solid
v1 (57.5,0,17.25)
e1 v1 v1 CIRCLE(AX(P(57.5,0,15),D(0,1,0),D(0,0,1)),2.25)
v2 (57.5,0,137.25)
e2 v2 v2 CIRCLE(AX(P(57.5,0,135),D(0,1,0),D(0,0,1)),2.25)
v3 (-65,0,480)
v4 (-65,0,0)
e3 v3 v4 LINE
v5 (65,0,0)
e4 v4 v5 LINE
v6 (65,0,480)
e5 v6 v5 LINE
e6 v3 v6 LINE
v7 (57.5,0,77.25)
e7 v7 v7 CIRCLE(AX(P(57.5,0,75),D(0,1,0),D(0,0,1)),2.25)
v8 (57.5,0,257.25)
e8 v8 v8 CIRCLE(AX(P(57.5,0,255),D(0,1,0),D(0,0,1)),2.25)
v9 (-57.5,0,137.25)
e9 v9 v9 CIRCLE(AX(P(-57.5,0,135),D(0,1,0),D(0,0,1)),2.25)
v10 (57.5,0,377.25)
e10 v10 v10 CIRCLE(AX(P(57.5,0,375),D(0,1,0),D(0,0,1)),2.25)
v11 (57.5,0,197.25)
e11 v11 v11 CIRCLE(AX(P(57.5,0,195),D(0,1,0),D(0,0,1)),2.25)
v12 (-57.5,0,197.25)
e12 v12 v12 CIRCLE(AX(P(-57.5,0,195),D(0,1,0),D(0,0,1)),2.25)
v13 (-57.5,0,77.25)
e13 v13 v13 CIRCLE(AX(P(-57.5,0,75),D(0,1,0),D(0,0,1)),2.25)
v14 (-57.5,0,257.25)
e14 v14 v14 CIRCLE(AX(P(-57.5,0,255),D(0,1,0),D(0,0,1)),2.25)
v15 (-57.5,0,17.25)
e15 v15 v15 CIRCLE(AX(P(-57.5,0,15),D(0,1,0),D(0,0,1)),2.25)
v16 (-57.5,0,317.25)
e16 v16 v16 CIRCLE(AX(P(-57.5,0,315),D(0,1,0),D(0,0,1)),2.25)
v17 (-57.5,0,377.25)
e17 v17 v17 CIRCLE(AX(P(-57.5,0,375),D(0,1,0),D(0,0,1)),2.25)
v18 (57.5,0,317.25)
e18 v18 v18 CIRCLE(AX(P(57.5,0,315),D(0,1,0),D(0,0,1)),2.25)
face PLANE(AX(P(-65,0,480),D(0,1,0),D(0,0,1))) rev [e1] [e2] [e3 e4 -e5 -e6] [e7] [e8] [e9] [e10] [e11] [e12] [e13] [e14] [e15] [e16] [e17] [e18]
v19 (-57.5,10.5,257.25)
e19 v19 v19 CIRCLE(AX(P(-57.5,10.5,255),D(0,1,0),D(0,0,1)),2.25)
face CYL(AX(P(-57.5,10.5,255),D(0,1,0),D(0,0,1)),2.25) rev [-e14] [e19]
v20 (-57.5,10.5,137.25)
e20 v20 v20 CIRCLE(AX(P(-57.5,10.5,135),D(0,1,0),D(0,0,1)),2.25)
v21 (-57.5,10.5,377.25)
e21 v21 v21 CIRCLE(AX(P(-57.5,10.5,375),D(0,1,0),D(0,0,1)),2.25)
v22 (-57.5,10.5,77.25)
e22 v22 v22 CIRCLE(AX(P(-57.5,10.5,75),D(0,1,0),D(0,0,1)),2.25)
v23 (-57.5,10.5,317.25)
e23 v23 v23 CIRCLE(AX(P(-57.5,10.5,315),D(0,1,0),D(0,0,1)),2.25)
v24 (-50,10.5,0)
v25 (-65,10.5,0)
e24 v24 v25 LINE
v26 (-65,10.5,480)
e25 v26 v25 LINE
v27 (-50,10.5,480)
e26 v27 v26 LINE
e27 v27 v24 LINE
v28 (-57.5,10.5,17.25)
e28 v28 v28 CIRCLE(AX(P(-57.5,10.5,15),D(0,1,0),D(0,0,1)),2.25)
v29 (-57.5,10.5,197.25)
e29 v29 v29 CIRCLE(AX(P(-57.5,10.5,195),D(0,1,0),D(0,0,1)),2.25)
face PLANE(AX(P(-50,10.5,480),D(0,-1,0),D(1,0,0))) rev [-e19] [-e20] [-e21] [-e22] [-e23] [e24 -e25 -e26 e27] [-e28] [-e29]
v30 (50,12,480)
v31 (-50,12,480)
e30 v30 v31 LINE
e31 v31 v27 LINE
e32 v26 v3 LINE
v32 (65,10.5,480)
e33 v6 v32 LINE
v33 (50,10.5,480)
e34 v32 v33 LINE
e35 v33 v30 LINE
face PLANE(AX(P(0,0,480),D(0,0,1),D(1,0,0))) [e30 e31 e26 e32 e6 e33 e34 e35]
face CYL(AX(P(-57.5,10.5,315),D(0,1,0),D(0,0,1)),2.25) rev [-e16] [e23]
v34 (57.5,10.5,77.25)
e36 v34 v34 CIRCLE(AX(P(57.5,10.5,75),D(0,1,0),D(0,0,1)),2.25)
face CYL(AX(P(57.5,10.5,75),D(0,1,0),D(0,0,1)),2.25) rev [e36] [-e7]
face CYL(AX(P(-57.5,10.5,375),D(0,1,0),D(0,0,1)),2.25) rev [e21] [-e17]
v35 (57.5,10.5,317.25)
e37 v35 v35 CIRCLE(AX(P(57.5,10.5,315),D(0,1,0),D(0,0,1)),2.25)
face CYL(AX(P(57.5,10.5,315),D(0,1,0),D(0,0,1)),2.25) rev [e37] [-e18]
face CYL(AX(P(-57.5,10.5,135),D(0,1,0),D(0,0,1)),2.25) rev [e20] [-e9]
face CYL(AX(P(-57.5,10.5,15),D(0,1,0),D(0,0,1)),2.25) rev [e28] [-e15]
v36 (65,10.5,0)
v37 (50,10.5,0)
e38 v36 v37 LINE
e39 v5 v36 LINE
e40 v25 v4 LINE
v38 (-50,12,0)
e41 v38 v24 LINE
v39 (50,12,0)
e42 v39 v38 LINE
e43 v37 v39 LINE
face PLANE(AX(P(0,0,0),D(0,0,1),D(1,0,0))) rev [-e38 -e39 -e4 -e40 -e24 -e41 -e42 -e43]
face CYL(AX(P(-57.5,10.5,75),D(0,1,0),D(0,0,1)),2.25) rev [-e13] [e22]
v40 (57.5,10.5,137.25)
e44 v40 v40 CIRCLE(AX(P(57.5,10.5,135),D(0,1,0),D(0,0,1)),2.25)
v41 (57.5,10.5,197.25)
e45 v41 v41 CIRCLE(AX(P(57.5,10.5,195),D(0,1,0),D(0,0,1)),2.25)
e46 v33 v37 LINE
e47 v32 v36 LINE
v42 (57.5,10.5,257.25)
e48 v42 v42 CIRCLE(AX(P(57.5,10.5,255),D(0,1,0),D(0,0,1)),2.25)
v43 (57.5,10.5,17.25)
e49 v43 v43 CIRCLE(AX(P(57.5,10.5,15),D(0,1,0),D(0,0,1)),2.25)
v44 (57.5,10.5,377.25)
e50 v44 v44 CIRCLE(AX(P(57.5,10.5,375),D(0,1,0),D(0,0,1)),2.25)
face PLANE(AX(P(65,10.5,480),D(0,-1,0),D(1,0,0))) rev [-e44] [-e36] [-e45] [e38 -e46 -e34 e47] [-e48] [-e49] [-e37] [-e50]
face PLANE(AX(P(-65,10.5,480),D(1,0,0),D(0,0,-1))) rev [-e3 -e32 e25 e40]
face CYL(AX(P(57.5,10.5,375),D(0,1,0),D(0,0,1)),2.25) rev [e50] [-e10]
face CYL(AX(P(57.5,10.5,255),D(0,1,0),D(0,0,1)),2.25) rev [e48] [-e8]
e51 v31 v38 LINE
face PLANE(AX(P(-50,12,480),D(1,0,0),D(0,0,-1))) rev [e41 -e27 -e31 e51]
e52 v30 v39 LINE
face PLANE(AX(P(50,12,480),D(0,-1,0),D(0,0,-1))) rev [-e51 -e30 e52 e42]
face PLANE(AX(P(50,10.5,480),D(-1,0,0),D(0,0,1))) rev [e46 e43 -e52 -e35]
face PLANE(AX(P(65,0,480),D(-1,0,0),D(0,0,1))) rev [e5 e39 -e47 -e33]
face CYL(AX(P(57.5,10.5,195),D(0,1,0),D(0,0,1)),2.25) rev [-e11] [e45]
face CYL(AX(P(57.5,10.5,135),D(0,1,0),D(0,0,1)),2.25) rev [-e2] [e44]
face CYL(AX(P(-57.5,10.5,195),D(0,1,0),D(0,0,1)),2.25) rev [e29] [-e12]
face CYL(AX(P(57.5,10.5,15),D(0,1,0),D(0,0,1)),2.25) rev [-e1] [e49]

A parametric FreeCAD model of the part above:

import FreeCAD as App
import Part
import Sketcher

V = App.Vector
Q = App.Units.Quantity

doc = App.newDocument("Part")
body = doc.addObject("PartDesign::Body", "Body")

# Sketch on XY plane
sketch1 = body.newObject("Sketcher::SketchObject", "Sketch")
sketch1.AttachmentSupport = (doc.getObject("XY_Plane"), [""])
sketch1.MapMode = "FlatFace"
sketch1.addGeometry(Part.LineSegment(V(-65, 0, 0), V(65, 0, 0)), False)
sketch1.addGeometry(Part.LineSegment(V(65, 0, 0), V(65, 10.5, 0)), False)
sketch1.addGeometry(Part.LineSegment(V(65, 10.5, 0), V(50, 10.5, 0)), False)
sketch1.addGeometry(Part.LineSegment(V(50, 10.5, 0), V(50, 12, 0)), False)
sketch1.addGeometry(Part.LineSegment(V(50, 12, 0), V(-50, 12, 0)), False)
sketch1.addGeometry(Part.LineSegment(V(-50, 12, 0), V(-50, 10.5, 0)), False)
sketch1.addGeometry(Part.LineSegment(V(-50, 10.5, 0), V(-65, 10.5, 0)), False)
sketch1.addGeometry(Part.LineSegment(V(-65, 10.5, 0), V(-65, 0, 0)), False)
sketch1.addConstraint(Sketcher.Constraint("Coincident", 0, 2, 1, 1))
sketch1.addConstraint(Sketcher.Constraint("Coincident", 1, 2, 2, 1))
sketch1.addConstraint(Sketcher.Constraint("Coincident", 2, 2, 3, 1))
sketch1.addConstraint(Sketcher.Constraint("Coincident", 3, 2, 4, 1))
sketch1.addConstraint(Sketcher.Constraint("Coincident", 4, 2, 5, 1))
sketch1.addConstraint(Sketcher.Constraint("Coincident", 5, 2, 6, 1))
sketch1.addConstraint(Sketcher.Constraint("Coincident", 6, 2, 7, 1))
sketch1.addConstraint(Sketcher.Constraint("Coincident", 7, 2, 0, 1))
sketch1.addConstraint(Sketcher.Constraint("Horizontal", 0))
sketch1.addConstraint(Sketcher.Constraint("Vertical", 1))
sketch1.addConstraint(Sketcher.Constraint("Horizontal", 2))
sketch1.addConstraint(Sketcher.Constraint("Vertical", 3))
sketch1.addConstraint(Sketcher.Constraint("Horizontal", 4))
sketch1.addConstraint(Sketcher.Constraint("Vertical", 5))
sketch1.addConstraint(Sketcher.Constraint("Horizontal", 6))
sketch1.addConstraint(Sketcher.Constraint("Vertical", 7))
sketch1.addConstraint(Sketcher.Constraint("Symmetric", 0, 2, 7, 2, -1, 1))
sketch1.addConstraint(Sketcher.Constraint("Symmetric", 2, 2, 5, 2, -2))
sketch1.addConstraint(Sketcher.Constraint("DistanceX", 0, 1, 0, 2, Q("130 mm")))
sketch1.addConstraint(Sketcher.Constraint("DistanceX", 2, 2, 2, 1, Q("15 mm")))
sketch1.addConstraint(Sketcher.Constraint("DistanceY", 1, 1, 1, 2, Q("10.5 mm")))
sketch1.addConstraint(Sketcher.Constraint("DistanceY", 3, 1, 3, 2, Q("1.5 mm")))
pad1 = body.newObject("PartDesign::Pad", "Pad")
pad1.Profile = sketch1
pad1.Length = 480

# Sketch on XZ plane
sketch2 = body.newObject("Sketcher::SketchObject", "Sketch001")
sketch2.AttachmentSupport = (doc.getObject("XZ_Plane"), [""])
sketch2.MapMode = "FlatFace"
sketch2.AttachmentOffset = App.Placement(V(0, 0, -10.5), App.Rotation())
sketch2.addGeometry(Part.Circle(V(-57.5, 375, 0), V(0, 0, 1), 2.25), False)
sketch2.addGeometry(Part.Circle(V(-57.5, 15, 0), V(0, 0, 1), 2.25), False)
sketch2.addGeometry(Part.Circle(V(-57.5, 315, 0), V(0, 0, 1), 2.25), False)
sketch2.addGeometry(Part.Circle(V(-57.5, 255, 0), V(0, 0, 1), 2.25), False)
sketch2.addGeometry(Part.Circle(V(-57.5, 195, 0), V(0, 0, 1), 2.25), False)
sketch2.addGeometry(Part.Circle(V(-57.5, 135, 0), V(0, 0, 1), 2.25), False)
sketch2.addGeometry(Part.Circle(V(-57.5, 75, 0), V(0, 0, 1), 2.25), False)
sketch2.addConstraint(Sketcher.Constraint("Equal", 0, 1))
sketch2.addConstraint(Sketcher.Constraint("Equal", 1, 2))
sketch2.addConstraint(Sketcher.Constraint("Equal", 2, 3))
sketch2.addConstraint(Sketcher.Constraint("Equal", 3, 4))
sketch2.addConstraint(Sketcher.Constraint("Equal", 4, 5))
sketch2.addConstraint(Sketcher.Constraint("Equal", 5, 6))
sketch2.addConstraint(Sketcher.Constraint("Vertical", 0, 3, 1, 3))
sketch2.addConstraint(Sketcher.Constraint("Vertical", 1, 3, 2, 3))
sketch2.addConstraint(Sketcher.Constraint("Vertical", 2, 3, 3, 3))
sketch2.addConstraint(Sketcher.Constraint("Vertical", 3, 3, 4, 3))
sketch2.addConstraint(Sketcher.Constraint("Vertical", 4, 3, 5, 3))
sketch2.addConstraint(Sketcher.Constraint("Vertical", 5, 3, 6, 3))
sketch2.addConstraint(Sketcher.Constraint("Diameter", 0, Q("4.5 mm")))
sketch2.addConstraint(Sketcher.Constraint("DistanceY", -1, 1, 0, 3, Q("375 mm")))
sketch2.addConstraint(Sketcher.Constraint("DistanceY", -1, 1, 1, 3, Q("15 mm")))
sketch2.addConstraint(Sketcher.Constraint("DistanceY", -1, 1, 2, 3, Q("315 mm")))
sketch2.addConstraint(Sketcher.Constraint("DistanceY", -1, 1, 3, 3, Q("255 mm")))
sketch2.addConstraint(Sketcher.Constraint("DistanceY", -1, 1, 4, 3, Q("195 mm")))
sketch2.addConstraint(Sketcher.Constraint("DistanceY", -1, 1, 5, 3, Q("135 mm")))
sketch2.addConstraint(Sketcher.Constraint("DistanceY", -1, 1, 6, 3, Q("75 mm")))
sketch2.addConstraint(Sketcher.Constraint("DistanceX", 0, 3, -1, 1, Q("57.5 mm")))
doc.recompute()
hole = body.newObject("PartDesign::Hole", "Hole")
hole.Profile = sketch2
hole.ThreadType = "None"
hole.Diameter = 4.5
hole.DepthType = "ThroughAll"
hole.Reversed = True

# Sketch on XZ plane
sketch3 = body.newObject("Sketcher::SketchObject", "Sketch002")
sketch3.AttachmentSupport = (doc.getObject("XZ_Plane"), [""])
sketch3.MapMode = "FlatFace"
sketch3.AttachmentOffset = App.Placement(V(0, 0, -10.5), App.Rotation())
sketch3.addGeometry(Part.Circle(V(57.5, 375, 0), V(0, 0, 1), 2.25), False)
sketch3.addGeometry(Part.Circle(V(57.5, 15, 0), V(0, 0, 1), 2.25), False)
sketch3.addGeometry(Part.Circle(V(57.5, 315, 0), V(0, 0, 1), 2.25), False)
sketch3.addGeometry(Part.Circle(V(57.5, 255, 0), V(0, 0, 1), 2.25), False)
sketch3.addGeometry(Part.Circle(V(57.5, 195, 0), V(0, 0, 1), 2.25), False)
sketch3.addGeometry(Part.Circle(V(57.5, 135, 0), V(0, 0, 1), 2.25), False)
sketch3.addGeometry(Part.Circle(V(57.5, 75, 0), V(0, 0, 1), 2.25), False)
sketch3.addConstraint(Sketcher.Constraint("Equal", 0, 1))
sketch3.addConstraint(Sketcher.Constraint("Equal", 1, 2))
sketch3.addConstraint(Sketcher.Constraint("Equal", 2, 3))
sketch3.addConstraint(Sketcher.Constraint("Equal", 3, 4))
sketch3.addConstraint(Sketcher.Constraint("Equal", 4, 5))
sketch3.addConstraint(Sketcher.Constraint("Equal", 5, 6))
sketch3.addConstraint(Sketcher.Constraint("Vertical", 0, 3, 1, 3))
sketch3.addConstraint(Sketcher.Constraint("Vertical", 1, 3, 2, 3))
sketch3.addConstraint(Sketcher.Constraint("Vertical", 2, 3, 3, 3))
sketch3.addConstraint(Sketcher.Constraint("Vertical", 3, 3, 4, 3))
sketch3.addConstraint(Sketcher.Constraint("Vertical", 4, 3, 5, 3))
sketch3.addConstraint(Sketcher.Constraint("Vertical", 5, 3, 6, 3))
sketch3.addConstraint(Sketcher.Constraint("Diameter", 0, Q("4.5 mm")))
sketch3.addConstraint(Sketcher.Constraint("DistanceY", -1, 1, 0, 3, Q("375 mm")))
sketch3.addConstraint(Sketcher.Constraint("DistanceY", -1, 1, 1, 3, Q("15 mm")))
sketch3.addConstraint(Sketcher.Constraint("DistanceY", -1, 1, 2, 3, Q("315 mm")))
sketch3.addConstraint(Sketcher.Constraint("DistanceY", -1, 1, 3, 3, Q("255 mm")))
sketch3.addConstraint(Sketcher.Constraint("DistanceY", -1, 1, 4, 3, Q("195 mm")))
sketch3.addConstraint(Sketcher.Constraint("DistanceY", -1, 1, 5, 3, Q("135 mm")))
sketch3.addConstraint(Sketcher.Constraint("DistanceY", -1, 1, 6, 3, Q("75 mm")))
sketch3.addConstraint(Sketcher.Constraint("DistanceX", -1, 1, 0, 3, Q("57.5 mm")))
doc.recompute()
hole2 = body.newObject("PartDesign::Hole", "Hole001")
hole2.Profile = sketch3
hole2.ThreadType = "None"
hole2.Diameter = 4.5
hole2.DepthType = "ThroughAll"
hole2.Reversed = True

doc.recompute()
